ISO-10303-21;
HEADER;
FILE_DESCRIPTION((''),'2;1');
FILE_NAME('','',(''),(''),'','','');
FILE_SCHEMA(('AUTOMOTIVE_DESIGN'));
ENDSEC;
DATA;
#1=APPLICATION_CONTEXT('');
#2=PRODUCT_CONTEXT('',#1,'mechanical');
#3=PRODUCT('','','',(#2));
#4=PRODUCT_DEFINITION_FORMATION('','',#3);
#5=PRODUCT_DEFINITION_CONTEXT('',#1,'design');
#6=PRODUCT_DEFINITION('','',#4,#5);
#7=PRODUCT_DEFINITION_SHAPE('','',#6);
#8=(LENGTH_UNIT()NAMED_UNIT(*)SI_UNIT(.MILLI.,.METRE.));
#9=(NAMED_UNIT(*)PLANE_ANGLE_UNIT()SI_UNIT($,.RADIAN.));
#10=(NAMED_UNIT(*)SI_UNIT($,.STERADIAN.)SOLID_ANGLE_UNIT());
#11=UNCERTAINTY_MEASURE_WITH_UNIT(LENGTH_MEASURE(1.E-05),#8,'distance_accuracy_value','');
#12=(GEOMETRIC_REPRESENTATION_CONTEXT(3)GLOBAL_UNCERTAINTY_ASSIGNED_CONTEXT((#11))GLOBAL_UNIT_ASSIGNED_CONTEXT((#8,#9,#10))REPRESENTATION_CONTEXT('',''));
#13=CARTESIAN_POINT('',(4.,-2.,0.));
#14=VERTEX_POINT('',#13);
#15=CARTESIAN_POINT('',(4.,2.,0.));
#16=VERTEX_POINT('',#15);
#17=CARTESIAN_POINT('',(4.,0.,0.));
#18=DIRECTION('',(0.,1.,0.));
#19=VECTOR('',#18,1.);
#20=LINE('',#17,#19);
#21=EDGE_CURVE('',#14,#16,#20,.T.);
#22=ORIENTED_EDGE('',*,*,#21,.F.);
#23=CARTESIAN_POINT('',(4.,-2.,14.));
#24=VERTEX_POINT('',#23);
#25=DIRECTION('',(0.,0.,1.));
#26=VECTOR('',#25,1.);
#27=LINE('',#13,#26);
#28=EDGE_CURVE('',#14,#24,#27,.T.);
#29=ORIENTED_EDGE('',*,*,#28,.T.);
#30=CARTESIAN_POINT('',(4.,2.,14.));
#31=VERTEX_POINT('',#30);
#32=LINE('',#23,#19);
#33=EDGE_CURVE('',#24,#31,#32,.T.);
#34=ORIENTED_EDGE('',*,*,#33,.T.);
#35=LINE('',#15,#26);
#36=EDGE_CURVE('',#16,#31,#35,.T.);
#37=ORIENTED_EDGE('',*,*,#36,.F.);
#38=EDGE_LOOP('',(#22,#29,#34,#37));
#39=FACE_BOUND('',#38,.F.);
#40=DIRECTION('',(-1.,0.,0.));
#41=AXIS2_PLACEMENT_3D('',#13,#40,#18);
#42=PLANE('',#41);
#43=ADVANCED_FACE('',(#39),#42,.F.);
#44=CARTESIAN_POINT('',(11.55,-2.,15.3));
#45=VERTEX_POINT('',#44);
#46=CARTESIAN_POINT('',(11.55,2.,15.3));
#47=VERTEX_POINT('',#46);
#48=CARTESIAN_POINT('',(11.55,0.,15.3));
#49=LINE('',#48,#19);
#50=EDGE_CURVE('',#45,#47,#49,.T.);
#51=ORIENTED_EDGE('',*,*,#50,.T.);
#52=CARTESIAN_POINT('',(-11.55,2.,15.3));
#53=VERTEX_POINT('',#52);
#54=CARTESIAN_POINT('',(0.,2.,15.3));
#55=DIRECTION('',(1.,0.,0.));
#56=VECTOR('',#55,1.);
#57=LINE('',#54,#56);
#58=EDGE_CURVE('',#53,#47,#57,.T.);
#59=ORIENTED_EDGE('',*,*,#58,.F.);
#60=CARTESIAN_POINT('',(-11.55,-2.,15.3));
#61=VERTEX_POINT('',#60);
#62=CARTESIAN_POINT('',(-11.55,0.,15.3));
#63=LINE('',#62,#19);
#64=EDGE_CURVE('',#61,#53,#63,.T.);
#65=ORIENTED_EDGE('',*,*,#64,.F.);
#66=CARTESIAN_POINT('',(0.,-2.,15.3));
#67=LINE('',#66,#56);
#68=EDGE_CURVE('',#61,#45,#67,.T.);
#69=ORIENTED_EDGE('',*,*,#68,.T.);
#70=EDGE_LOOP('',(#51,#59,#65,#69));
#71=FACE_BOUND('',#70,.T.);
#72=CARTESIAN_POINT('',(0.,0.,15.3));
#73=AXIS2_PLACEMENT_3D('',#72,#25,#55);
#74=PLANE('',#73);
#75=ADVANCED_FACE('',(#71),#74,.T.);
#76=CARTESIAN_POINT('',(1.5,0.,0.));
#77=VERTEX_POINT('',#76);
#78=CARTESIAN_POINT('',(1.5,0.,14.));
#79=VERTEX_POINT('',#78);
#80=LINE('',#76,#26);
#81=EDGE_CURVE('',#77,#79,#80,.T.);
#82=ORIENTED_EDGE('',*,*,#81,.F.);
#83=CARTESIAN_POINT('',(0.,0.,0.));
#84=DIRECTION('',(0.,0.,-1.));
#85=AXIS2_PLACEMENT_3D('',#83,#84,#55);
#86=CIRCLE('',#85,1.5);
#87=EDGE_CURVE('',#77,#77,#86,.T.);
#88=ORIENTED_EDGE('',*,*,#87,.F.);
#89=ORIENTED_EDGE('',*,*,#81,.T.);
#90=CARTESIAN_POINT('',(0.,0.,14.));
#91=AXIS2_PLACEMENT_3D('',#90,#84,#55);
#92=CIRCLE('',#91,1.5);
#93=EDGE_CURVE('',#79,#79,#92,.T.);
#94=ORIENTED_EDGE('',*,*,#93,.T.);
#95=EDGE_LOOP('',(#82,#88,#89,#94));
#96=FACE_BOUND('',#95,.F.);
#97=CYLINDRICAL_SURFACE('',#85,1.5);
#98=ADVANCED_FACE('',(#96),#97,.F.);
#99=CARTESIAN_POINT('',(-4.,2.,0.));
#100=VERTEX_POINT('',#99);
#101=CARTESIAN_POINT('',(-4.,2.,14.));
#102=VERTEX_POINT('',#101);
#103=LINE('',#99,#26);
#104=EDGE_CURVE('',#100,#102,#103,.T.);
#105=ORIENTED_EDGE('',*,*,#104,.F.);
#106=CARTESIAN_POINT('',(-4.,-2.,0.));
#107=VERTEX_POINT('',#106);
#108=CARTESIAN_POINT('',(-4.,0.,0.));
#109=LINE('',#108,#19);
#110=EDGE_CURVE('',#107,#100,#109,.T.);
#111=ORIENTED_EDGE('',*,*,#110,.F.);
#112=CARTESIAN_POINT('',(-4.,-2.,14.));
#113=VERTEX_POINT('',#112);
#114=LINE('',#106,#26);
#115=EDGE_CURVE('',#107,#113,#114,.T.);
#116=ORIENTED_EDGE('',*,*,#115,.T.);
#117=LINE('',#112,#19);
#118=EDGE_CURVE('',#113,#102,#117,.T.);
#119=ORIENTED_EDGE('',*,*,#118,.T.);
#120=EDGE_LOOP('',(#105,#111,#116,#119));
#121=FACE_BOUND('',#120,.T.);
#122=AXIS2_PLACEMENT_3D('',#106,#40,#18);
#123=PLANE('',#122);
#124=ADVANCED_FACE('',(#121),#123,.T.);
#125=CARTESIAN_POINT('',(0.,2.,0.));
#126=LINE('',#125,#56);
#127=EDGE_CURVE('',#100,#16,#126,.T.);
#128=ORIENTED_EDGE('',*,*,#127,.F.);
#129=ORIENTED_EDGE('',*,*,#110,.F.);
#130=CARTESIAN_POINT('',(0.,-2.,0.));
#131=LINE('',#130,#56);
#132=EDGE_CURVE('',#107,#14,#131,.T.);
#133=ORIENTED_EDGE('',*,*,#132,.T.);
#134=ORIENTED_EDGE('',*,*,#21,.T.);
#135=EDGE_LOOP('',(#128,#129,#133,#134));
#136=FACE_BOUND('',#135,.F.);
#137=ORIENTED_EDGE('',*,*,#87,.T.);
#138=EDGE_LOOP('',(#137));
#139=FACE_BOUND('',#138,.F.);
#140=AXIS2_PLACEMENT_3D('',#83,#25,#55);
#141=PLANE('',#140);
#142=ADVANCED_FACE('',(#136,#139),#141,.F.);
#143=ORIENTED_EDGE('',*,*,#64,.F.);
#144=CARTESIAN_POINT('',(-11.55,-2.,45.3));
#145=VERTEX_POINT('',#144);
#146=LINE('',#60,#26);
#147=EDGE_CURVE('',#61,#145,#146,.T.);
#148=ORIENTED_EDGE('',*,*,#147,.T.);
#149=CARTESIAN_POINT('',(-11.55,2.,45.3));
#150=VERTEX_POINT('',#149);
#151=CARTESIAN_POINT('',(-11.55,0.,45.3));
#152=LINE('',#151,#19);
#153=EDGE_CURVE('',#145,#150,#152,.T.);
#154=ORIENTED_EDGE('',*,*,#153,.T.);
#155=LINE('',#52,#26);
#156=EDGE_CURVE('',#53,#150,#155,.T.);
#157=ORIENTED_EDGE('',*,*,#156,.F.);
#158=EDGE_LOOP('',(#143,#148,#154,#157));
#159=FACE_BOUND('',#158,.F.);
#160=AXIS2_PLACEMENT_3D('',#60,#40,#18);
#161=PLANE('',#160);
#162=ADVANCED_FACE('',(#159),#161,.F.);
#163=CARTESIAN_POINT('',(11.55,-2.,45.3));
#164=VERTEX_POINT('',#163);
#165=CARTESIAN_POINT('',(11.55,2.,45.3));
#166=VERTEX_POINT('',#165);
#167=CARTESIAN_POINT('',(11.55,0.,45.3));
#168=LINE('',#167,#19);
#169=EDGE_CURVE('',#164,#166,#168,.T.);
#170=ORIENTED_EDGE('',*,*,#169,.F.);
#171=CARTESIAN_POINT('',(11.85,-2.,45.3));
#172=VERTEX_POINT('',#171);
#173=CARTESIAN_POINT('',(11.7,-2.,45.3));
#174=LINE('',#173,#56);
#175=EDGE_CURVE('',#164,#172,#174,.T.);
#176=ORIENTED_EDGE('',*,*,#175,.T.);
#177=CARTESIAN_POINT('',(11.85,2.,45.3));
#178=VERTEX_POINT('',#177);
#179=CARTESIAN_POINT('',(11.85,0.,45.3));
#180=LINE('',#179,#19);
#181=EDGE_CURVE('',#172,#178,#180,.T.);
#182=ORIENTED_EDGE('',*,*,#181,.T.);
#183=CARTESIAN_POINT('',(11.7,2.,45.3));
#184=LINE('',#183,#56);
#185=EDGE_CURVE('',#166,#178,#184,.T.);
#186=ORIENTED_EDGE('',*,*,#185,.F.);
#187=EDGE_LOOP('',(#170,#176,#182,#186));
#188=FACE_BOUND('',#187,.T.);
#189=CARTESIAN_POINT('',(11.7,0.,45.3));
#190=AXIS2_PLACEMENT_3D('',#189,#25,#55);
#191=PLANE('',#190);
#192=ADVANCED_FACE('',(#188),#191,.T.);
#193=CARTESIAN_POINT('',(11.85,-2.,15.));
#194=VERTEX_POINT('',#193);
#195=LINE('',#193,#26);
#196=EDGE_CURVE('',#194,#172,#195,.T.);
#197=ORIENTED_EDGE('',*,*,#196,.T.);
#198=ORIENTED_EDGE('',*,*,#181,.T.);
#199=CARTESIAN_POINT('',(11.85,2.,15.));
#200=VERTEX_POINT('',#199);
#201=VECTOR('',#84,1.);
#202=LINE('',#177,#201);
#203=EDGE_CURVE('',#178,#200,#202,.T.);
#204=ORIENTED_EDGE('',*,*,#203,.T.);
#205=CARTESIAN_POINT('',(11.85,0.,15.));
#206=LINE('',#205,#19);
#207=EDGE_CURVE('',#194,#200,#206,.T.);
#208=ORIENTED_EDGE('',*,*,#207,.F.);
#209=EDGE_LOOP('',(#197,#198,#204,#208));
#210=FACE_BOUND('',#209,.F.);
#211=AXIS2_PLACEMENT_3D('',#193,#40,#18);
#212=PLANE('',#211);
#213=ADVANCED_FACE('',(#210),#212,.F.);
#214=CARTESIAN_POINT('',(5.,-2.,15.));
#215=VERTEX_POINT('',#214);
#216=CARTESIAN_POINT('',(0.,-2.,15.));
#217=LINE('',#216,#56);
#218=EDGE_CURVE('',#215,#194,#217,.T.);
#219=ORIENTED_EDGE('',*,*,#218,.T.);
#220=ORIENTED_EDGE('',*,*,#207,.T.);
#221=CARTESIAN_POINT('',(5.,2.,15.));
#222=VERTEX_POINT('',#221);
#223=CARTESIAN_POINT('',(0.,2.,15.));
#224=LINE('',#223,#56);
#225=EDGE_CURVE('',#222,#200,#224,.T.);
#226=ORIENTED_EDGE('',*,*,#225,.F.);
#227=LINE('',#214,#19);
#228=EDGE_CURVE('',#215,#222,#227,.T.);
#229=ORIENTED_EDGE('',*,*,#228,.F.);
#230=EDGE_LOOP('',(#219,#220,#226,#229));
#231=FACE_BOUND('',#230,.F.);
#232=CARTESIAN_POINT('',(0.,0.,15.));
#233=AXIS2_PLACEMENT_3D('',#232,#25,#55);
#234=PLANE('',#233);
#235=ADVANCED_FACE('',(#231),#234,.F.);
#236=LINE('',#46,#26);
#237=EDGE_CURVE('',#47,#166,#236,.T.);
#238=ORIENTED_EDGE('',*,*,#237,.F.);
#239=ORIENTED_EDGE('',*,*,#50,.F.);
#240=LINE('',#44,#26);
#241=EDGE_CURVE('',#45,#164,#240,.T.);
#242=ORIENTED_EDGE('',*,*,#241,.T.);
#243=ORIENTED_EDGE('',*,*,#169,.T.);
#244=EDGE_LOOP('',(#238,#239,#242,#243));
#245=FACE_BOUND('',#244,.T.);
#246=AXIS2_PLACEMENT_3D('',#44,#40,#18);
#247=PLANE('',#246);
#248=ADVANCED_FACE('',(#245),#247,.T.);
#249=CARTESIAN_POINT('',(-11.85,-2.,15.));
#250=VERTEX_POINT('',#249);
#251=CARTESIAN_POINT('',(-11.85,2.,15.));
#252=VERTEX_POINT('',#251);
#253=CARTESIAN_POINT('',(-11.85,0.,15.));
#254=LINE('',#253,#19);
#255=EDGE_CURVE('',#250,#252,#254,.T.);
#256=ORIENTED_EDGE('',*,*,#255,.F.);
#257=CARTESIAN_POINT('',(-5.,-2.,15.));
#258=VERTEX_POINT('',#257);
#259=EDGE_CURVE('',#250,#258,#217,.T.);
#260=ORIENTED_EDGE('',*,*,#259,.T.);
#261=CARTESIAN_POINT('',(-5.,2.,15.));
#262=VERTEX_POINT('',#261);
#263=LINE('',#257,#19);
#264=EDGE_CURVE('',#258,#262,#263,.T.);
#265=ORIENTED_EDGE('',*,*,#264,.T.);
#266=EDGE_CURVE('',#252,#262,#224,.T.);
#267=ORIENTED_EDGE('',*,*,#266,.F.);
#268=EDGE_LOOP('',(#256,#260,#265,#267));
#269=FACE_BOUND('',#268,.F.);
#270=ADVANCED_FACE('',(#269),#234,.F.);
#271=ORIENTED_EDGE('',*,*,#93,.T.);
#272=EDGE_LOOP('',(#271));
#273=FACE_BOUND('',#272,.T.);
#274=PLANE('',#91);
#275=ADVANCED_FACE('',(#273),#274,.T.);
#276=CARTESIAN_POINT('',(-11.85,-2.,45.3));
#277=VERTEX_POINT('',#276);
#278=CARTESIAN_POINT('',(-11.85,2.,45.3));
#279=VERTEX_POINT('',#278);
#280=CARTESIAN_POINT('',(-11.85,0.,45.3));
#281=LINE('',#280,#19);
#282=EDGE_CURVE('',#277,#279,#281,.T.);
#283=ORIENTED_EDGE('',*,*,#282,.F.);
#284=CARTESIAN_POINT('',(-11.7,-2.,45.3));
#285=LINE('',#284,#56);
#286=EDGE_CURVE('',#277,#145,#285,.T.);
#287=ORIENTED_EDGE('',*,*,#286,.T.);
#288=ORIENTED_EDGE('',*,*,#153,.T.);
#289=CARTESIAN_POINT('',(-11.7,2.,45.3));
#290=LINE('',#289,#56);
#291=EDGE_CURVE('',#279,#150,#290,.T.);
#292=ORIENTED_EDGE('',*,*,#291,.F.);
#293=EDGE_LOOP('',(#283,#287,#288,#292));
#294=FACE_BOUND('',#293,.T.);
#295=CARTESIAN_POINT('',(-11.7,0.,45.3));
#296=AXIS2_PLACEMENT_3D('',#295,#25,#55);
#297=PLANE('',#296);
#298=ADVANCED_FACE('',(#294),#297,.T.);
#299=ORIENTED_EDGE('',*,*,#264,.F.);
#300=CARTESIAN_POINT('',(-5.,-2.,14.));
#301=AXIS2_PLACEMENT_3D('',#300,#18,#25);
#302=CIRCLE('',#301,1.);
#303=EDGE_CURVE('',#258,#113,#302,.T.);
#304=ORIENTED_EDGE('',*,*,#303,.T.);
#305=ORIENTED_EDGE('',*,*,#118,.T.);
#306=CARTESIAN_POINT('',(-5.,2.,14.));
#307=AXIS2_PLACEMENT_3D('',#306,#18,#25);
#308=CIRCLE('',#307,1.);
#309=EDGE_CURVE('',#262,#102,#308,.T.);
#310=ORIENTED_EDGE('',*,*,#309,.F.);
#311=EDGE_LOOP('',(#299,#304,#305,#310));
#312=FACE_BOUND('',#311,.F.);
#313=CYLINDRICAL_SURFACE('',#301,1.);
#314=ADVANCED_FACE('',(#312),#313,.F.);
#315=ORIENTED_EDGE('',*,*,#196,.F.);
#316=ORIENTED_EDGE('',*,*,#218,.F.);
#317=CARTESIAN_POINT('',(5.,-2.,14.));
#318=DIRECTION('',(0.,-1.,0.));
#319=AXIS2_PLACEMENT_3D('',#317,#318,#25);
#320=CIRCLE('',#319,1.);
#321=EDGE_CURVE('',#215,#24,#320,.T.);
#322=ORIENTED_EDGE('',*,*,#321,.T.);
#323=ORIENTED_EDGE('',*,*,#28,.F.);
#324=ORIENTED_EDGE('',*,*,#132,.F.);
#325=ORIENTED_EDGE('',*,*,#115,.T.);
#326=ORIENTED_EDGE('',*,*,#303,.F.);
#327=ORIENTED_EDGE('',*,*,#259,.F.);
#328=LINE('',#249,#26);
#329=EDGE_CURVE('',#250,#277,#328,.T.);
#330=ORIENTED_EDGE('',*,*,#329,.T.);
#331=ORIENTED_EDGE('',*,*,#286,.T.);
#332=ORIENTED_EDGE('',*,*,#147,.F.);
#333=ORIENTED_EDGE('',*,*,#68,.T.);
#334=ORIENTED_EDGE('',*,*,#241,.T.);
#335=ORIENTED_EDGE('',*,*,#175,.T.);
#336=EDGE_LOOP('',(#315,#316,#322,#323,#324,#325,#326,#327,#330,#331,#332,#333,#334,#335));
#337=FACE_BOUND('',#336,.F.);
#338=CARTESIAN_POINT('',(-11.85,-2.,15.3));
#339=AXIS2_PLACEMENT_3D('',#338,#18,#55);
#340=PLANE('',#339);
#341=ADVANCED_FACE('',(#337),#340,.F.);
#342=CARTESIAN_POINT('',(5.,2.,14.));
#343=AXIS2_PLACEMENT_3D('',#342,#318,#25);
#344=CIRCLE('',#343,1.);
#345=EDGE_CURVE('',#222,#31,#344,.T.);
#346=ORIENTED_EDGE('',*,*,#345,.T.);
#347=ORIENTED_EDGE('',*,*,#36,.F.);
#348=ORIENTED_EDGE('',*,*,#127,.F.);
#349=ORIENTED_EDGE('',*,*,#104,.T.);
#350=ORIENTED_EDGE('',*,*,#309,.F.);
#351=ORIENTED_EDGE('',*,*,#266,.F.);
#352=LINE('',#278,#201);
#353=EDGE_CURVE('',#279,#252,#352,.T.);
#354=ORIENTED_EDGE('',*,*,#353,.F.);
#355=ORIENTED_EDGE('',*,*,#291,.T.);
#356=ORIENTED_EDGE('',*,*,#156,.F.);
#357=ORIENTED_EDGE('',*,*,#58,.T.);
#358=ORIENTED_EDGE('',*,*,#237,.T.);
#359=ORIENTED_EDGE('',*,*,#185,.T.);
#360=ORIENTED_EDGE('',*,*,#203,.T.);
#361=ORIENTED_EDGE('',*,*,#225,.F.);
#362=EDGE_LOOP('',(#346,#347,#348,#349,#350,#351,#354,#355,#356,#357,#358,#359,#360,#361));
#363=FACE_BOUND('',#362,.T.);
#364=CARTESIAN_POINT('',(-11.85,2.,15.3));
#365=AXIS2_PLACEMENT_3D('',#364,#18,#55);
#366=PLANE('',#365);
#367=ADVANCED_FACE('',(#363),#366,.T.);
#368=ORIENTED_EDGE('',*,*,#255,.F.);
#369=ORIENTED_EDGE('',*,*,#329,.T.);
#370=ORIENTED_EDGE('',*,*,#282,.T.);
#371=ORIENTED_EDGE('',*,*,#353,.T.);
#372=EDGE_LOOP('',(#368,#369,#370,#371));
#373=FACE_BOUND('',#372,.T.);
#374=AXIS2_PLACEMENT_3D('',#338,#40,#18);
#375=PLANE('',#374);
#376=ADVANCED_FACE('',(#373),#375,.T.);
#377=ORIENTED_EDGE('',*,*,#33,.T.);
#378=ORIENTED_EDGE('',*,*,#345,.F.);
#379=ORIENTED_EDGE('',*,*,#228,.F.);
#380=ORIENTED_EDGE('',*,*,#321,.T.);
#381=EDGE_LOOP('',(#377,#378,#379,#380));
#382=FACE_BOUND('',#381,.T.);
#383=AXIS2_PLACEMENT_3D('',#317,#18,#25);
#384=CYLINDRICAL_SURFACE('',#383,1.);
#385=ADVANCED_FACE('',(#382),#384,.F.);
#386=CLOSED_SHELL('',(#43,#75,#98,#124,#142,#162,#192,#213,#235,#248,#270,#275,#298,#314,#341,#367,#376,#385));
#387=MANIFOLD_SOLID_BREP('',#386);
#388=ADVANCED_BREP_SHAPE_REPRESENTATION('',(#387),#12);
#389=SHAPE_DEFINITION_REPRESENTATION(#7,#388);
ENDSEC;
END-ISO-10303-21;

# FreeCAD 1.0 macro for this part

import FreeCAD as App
import Part
import Sketcher

V = App.Vector


def edges_at(feature, points):
    """Names of the edges that pass closest to the given points."""
    edges = feature.Shape.Edges
    near = lambda p: min(range(len(edges)), key=lambda i: edges[i].distToShape(Part.Vertex(*p))[0])
    return sorted({f"Edge{near(p) + 1}" for p in points})


def add_polygon(sketch, points):
    """Adds a closed chain of lines whose ends are joined by coincident constraints."""
    first, n = sketch.GeometryCount, len(points)
    for a, b in zip(points, points[1:] + points[:1]):
        sketch.addGeometry(Part.LineSegment(App.Vector(*a, 0), App.Vector(*b, 0)), False)
    for i in range(n):
        sketch.addConstraint(Sketcher.Constraint("Coincident", first + i, 2, first + (i + 1) % n, 1))

doc = App.newDocument("Part")
body = doc.addObject("PartDesign::Body", "Body")

sketch1 = body.newObject("Sketcher::SketchObject", "Sketch")
sketch1.AttachmentSupport = (doc.getObject("XY_Plane"), [""])
sketch1.MapMode = "FlatFace"
add_polygon(sketch1, [(-4, 2), (-4, -2), (4, -2), (4, 2)])
sketch1.addConstraint([
    Sketcher.Constraint("Vertical", 0),
    Sketcher.Constraint("Horizontal", 1),
    Sketcher.Constraint("Vertical", 2),
    Sketcher.Constraint("Horizontal", 3),
    Sketcher.Constraint("Symmetric", 0, 2, 2, 2, -1, 1),
    Sketcher.Constraint("DistanceX", 1, 1, 1, 2, 8.0),
    Sketcher.Constraint("DistanceY", 0, 2, 0, 1, 4.0),
])
pad1 = body.newObject("PartDesign::Pad", "Pad")
pad1.Profile = sketch1
pad1.Length = 15

sketch2 = body.newObject("Sketcher::SketchObject", "Sketch001")
sketch2.AttachmentSupport = (doc.getObject("XY_Plane"), [""])
sketch2.MapMode = "FlatFace"
sketch2.addGeometry(Part.Circle(V(0, 0, 0), V(0, 0, 1), 1.5), False)
sketch2.addConstraint([
    Sketcher.Constraint("Coincident", 0, 3, -1, 1),
    Sketcher.Constraint("Diameter", 0, 3.0),
])
pocket1 = body.newObject("PartDesign::Pocket", "Pocket")
pocket1.Profile = sketch2
pocket1.Length = 14
pocket1.Reversed = True

sketch3 = body.newObject("Sketcher::SketchObject", "Sketch002")
sketch3.AttachmentSupport = (doc.getObject("XY_Plane"), [""])
sketch3.MapMode = "FlatFace"
sketch3.AttachmentOffset = App.Placement(V(0, 0, 15), App.Rotation())
add_polygon(sketch3, [(-11.85, 2), (-11.85, -2), (11.85, -2), (11.85, 2)])
sketch3.addConstraint([
    Sketcher.Constraint("Vertical", 0),
    Sketcher.Constraint("Horizontal", 1),
    Sketcher.Constraint("Vertical", 2),
    Sketcher.Constraint("Horizontal", 3),
    Sketcher.Constraint("Symmetric", 0, 2, 2, 2, -1, 1),
    Sketcher.Constraint("DistanceY", 0, 2, 0, 1, 4.0),
    Sketcher.Constraint("DistanceX", 1, 1, 1, 2, 23.7),
])
pad2 = body.newObject("PartDesign::Pad", "Pad001")
pad2.Profile = sketch3
pad2.Length = 0.3
doc.recompute()

fillet = body.newObject("PartDesign::Fillet", "Fillet")
fillet.Base = (pad2, edges_at(pad2, [(-4, 0, 15), (4, 0, 15)]))
fillet.Radius = 1

sketch4 = body.newObject("Sketcher::SketchObject", "Sketch003")
sketch4.AttachmentSupport = (doc.getObject("XY_Plane"), [""])
sketch4.MapMode = "FlatFace"
sketch4.AttachmentOffset = App.Placement(V(0, 0, 15.3), App.Rotation())
add_polygon(sketch4, [(-11.85, 2), (-11.85, -2), (-11.55, -2), (-11.55, 2)])
add_polygon(sketch4, [(11.55, 2), (11.55, -2), (11.85, -2), (11.85, 2)])
sketch4.addConstraint([
    Sketcher.Constraint("Vertical", 0),
    Sketcher.Constraint("Horizontal", 1),
    Sketcher.Constraint("Vertical", 2),
    Sketcher.Constraint("Horizontal", 3),
    Sketcher.Constraint("Vertical", 4),
    Sketcher.Constraint("Horizontal", 5),
    Sketcher.Constraint("Vertical", 6),
    Sketcher.Constraint("Horizontal", 7),
    Sketcher.Constraint("Symmetric", 2, 2, 4, 2, -1, 1),
    Sketcher.Constraint("Symmetric", 0, 2, 6, 2, -1, 1),
    Sketcher.Constraint("Horizontal", 1, 2, 4, 2),
    Sketcher.Constraint("DistanceY", 0, 2, 0, 1, 4.0),
    Sketcher.Constraint("DistanceX", 1, 1, 1, 2, 0.3),
    Sketcher.Constraint("DistanceX", 1, 2, 4, 2, 23.1),
])
pad3 = body.newObject("PartDesign::Pad", "Pad002")
pad3.Profile = sketch4
pad3.Length = 30

doc.recompute()
